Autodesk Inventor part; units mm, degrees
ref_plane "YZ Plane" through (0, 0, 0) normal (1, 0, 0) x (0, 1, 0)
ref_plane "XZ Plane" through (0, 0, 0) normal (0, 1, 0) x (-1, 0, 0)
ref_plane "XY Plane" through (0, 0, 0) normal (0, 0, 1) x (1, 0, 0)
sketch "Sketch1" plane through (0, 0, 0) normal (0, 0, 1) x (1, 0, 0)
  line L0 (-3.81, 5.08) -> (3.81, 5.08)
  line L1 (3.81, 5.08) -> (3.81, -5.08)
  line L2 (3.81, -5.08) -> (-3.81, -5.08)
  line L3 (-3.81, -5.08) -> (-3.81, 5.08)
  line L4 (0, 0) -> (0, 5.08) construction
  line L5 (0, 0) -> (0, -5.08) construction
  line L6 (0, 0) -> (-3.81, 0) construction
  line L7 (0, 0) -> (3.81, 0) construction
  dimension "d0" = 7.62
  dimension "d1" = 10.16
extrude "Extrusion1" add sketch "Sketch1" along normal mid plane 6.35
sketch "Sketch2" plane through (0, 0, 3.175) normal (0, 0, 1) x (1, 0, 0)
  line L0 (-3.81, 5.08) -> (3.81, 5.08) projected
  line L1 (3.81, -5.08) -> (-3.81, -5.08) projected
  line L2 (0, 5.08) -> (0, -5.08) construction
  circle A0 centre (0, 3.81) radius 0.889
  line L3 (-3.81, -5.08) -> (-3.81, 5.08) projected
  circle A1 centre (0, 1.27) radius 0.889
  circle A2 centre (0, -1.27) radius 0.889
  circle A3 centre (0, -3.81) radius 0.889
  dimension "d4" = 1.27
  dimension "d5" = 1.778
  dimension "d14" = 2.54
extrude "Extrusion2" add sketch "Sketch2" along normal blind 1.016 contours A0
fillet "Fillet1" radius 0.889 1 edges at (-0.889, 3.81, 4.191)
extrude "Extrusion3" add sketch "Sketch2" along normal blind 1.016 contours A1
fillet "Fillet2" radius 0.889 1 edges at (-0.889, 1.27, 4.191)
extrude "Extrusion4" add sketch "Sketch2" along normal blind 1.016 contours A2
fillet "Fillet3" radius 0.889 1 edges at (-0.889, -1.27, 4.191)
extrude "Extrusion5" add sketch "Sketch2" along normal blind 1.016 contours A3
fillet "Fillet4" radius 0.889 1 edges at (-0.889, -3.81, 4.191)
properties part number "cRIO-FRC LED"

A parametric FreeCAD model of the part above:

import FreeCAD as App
import Part
import Sketcher
Q = App.Units.Quantity


def edges_at(feature, points):
    """Names of the edges that pass closest to the given points."""
    edges = feature.Shape.Edges
    near = lambda p: min(range(len(edges)), key=lambda i: edges[i].distToShape(Part.Vertex(*p))[0])
    return sorted({f"Edge{near(p) + 1}" for p in points})

doc = App.newDocument("Part")
body = doc.addObject("PartDesign::Body", "Body")

# Sketch on XY plane
sketch1 = doc.addObject("Sketcher::SketchObject", "Sketch")
body.addObject(sketch1)
sketch1.AttachmentSupport = (doc.XY_Plane, [""])
sketch1.MapMode = "FlatFace"
sketch1.addGeometry([
    Part.LineSegment(App.Vector(4, 5, 0), App.Vector(-4, 5, 0)),
    Part.LineSegment(App.Vector(-4, 5, 0), App.Vector(-4, -5, 0)),
    Part.LineSegment(App.Vector(-4, -5, 0), App.Vector(4, -5, 0)),
    Part.LineSegment(App.Vector(4, -5, 0), App.Vector(4, 5, 0)),
], False)
sketch1.addConstraint([
    Sketcher.Constraint("Coincident", 0, 2, 1, 1),
    Sketcher.Constraint("Coincident", 1, 2, 2, 1),
    Sketcher.Constraint("Coincident", 2, 2, 3, 1),
    Sketcher.Constraint("Coincident", 3, 2, 0, 1),
    Sketcher.Constraint("Horizontal", 0),
    Sketcher.Constraint("Vertical", 1),
    Sketcher.Constraint("Horizontal", 2),
    Sketcher.Constraint("Vertical", 3),
    Sketcher.Constraint("Symmetric", 0, 2, 2, 2, -1, 1),
    Sketcher.Constraint("DistanceX", 0, 2, 0, 1, Q("0.3 in")),
    Sketcher.Constraint("DistanceY", 1, 2, 1, 1, Q("0.4 in")),
])
pad1 = doc.addObject("PartDesign::Pad", "Pad")
body.addObject(pad1)
pad1.Profile = sketch1
pad1.Length = Q("0.25 in")
pad1.Midplane = True

# Sketch on XY plane
sketch2 = doc.addObject("Sketcher::SketchObject", "Sketch001")
body.addObject(sketch2)
sketch2.AttachmentSupport = (doc.XY_Plane, [""])
sketch2.MapMode = "FlatFace"
sketch2.AttachmentOffset = App.Placement(App.Vector(0, 0, 0.125 * 25.4), App.Rotation())
sketch2.addGeometry(Part.Circle(App.Vector(0, 3.8, 0), App.Vector(0, 0, 1), 0.9), False)
sketch2.addConstraint([
    Sketcher.Constraint("PointOnObject", 0, 3, -2),
    Sketcher.Constraint("Diameter", 0, Q("0.07 in")),
    Sketcher.Constraint("DistanceY", -1, 1, 0, 3, Q("0.15 in")),
])
pad2 = doc.addObject("PartDesign::Pad", "Pad001")
body.addObject(pad2)
pad2.Profile = sketch2
pad2.Length = Q("0.04 in")
doc.recompute()

fillet = doc.addObject("PartDesign::Fillet", "Fillet")
body.addObject(fillet)
fillet.Base = (pad2, edges_at(pad2, [(-0.889, 3.81, 4.191)]))
fillet.Radius = Q("0.035 in")

# Sketch on XY plane
sketch3 = doc.addObject("Sketcher::SketchObject", "Sketch002")
body.addObject(sketch3)
sketch3.AttachmentSupport = (doc.XY_Plane, [""])
sketch3.MapMode = "FlatFace"
sketch3.AttachmentOffset = App.Placement(App.Vector(0, 0, 0.125 * 25.4), App.Rotation())
sketch3.addGeometry(Part.Circle(App.Vector(0, 1.3, 0), App.Vector(0, 0, 1), 0.9), False)
sketch3.addConstraint([
    Sketcher.Constraint("PointOnObject", 0, 3, -2),
    Sketcher.Constraint("Diameter", 0, Q("0.07 in")),
    Sketcher.Constraint("DistanceY", -1, 1, 0, 3, Q("0.05 in")),
])
pad3 = doc.addObject("PartDesign::Pad", "Pad002")
body.addObject(pad3)
pad3.Profile = sketch3
pad3.Length = Q("0.04 in")
doc.recompute()

fillet2 = doc.addObject("PartDesign::Fillet", "Fillet001")
body.addObject(fillet2)
fillet2.Base = (pad3, edges_at(pad3, [(-0.889, 1.27, 4.191)]))
fillet2.Radius = Q("0.035 in")

# Sketch on XY plane
sketch4 = doc.addObject("Sketcher::SketchObject", "Sketch003")
body.addObject(sketch4)
sketch4.AttachmentSupport = (doc.XY_Plane, [""])
sketch4.MapMode = "FlatFace"
sketch4.AttachmentOffset = App.Placement(App.Vector(0, 0, 0.125 * 25.4), App.Rotation())
sketch4.addGeometry(Part.Circle(App.Vector(0, -1.3, 0), App.Vector(0, 0, 1), 0.9), False)
sketch4.addConstraint([
    Sketcher.Constraint("PointOnObject", 0, 3, -2),
    Sketcher.Constraint("Diameter", 0, Q("0.07 in")),
    Sketcher.Constraint("DistanceY", 0, 3, -1, 1, Q("0.05 in")),
])
pad4 = doc.addObject("PartDesign::Pad", "Pad003")
body.addObject(pad4)
pad4.Profile = sketch4
pad4.Length = Q("0.04 in")
doc.recompute()

fillet3 = doc.addObject("PartDesign::Fillet", "Fillet002")
body.addObject(fillet3)
fillet3.Base = (pad4, edges_at(pad4, [(-0.889, -1.27, 4.191)]))
fillet3.Radius = Q("0.035 in")

# Sketch on XY plane
sketch5 = doc.addObject("Sketcher::SketchObject", "Sketch004")
body.addObject(sketch5)
sketch5.AttachmentSupport = (doc.XY_Plane, [""])
sketch5.MapMode = "FlatFace"
sketch5.AttachmentOffset = App.Placement(App.Vector(0, 0, 0.125 * 25.4), App.Rotation())
sketch5.addGeometry(Part.Circle(App.Vector(0, -3.8, 0), App.Vector(0, 0, 1), 0.9), False)
sketch5.addConstraint([
    Sketcher.Constraint("PointOnObject", 0, 3, -2),
    Sketcher.Constraint("Diameter", 0, Q("0.07 in")),
    Sketcher.Constraint("DistanceY", 0, 3, -1, 1, Q("0.15 in")),
])
pad5 = doc.addObject("PartDesign::Pad", "Pad004")
body.addObject(pad5)
pad5.Profile = sketch5
pad5.Length = Q("0.04 in")
doc.recompute()

fillet4 = doc.addObject("PartDesign::Fillet", "Fillet003")
body.addObject(fillet4)
fillet4.Base = (pad5, edges_at(pad5, [(-0.889, -3.81, 4.191)]))
fillet4.Radius = Q("0.035 in")

doc.recompute()
